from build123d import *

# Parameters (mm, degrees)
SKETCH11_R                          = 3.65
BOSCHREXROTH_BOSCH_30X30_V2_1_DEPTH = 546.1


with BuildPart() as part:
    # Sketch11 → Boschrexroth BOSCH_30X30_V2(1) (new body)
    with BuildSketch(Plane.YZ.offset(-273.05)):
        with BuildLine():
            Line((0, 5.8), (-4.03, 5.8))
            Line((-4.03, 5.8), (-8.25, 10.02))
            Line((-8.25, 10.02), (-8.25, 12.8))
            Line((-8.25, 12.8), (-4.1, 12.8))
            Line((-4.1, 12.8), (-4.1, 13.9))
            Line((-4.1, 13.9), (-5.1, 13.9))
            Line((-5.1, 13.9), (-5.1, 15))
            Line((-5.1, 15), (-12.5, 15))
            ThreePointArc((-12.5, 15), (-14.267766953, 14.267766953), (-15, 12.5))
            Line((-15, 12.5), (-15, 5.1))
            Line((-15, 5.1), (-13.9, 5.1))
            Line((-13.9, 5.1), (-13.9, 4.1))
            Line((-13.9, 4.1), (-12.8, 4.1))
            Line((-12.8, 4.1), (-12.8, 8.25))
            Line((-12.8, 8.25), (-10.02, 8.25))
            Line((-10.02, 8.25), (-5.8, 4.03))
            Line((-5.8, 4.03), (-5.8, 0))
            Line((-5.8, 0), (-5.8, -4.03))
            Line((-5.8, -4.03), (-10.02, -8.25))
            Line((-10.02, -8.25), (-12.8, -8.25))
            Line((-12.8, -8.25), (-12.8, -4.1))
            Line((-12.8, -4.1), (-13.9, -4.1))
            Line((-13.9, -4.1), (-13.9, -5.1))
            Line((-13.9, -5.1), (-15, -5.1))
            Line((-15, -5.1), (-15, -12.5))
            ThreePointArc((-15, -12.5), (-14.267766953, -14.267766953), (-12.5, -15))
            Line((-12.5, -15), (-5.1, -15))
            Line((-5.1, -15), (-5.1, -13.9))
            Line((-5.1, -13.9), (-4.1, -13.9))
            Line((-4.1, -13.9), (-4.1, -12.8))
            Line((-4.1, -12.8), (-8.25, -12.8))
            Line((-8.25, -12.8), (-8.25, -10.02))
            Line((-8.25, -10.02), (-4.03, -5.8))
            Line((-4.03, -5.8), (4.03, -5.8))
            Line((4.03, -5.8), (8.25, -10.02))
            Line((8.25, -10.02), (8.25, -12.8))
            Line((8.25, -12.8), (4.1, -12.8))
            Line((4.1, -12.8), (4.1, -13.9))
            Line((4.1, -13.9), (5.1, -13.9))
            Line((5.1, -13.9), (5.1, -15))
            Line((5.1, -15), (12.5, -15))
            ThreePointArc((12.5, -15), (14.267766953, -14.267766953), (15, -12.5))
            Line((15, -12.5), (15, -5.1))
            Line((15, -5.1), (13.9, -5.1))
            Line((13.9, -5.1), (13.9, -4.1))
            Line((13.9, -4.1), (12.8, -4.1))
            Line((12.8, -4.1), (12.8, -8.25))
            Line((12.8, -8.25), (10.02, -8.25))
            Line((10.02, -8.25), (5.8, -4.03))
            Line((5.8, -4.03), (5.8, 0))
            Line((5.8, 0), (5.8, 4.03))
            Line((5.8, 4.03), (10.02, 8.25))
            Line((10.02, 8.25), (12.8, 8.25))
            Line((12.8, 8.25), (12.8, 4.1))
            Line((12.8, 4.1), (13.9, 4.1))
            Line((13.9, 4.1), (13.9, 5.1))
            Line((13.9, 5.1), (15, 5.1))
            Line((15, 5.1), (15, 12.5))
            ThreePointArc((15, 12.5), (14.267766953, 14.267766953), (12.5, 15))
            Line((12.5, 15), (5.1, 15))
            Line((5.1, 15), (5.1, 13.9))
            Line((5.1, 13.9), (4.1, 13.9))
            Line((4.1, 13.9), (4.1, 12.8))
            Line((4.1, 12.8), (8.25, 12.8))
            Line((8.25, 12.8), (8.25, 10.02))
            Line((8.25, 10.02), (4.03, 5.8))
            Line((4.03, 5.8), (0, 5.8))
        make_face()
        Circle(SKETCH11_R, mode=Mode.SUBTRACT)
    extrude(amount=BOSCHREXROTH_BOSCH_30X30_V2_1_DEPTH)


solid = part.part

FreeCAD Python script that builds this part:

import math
import FreeCAD as App
import Part
import Sketcher
from FreeCAD import Vector

doc = App.newDocument("Part")
body = doc.addObject("PartDesign::Body", "Body")

# Sketch on YZ plane
sketch1 = body.newObject("Sketcher::SketchObject", "Sketch")
sketch1.AttachmentSupport = (doc.getObject("YZ_Plane"), [""])
sketch1.MapMode = "FlatFace"
sketch1.AttachmentOffset = App.Placement(Vector(0, 0, -273.05), App.Rotation())
sketch1.addGeometry([
    Part.LineSegment(Vector(-4, 5.8, 0), Vector(-8.2, 10, 0)),  # 0
    Part.LineSegment(Vector(-8.2, 10, 0), Vector(-8.2, 12.8, 0)),  # 1
    Part.LineSegment(Vector(-8.2, 12.8, 0), Vector(-4.1, 12.8, 0)),  # 2
    Part.LineSegment(Vector(-4.1, 12.8, 0), Vector(-4.1, 13.9, 0)),  # 3
    Part.LineSegment(Vector(-4.1, 13.9, 0), Vector(-5.1, 13.9, 0)),  # 4
    Part.LineSegment(Vector(-5.1, 13.9, 0), Vector(-5.1, 15, 0)),  # 5
    Part.LineSegment(Vector(-5.1, 15, 0), Vector(-12.5, 15, 0)),  # 6
    Part.ArcOfCircle(Part.Circle(Vector(-12.5, 12.5, 0), Vector(0, 0, 1), 2.5), math.radians(90), math.radians(180)),  # 7
    Part.LineSegment(Vector(-15, 12.5, 0), Vector(-15, 5.1, 0)),  # 8
    Part.LineSegment(Vector(-15, 5.1, 0), Vector(-13.9, 5.1, 0)),  # 9
    Part.LineSegment(Vector(-13.9, 5.1, 0), Vector(-13.9, 4.1, 0)),  # 10
    Part.LineSegment(Vector(-13.9, 4.1, 0), Vector(-12.8, 4.1, 0)),  # 11
    Part.LineSegment(Vector(-12.8, 4.1, 0), Vector(-12.8, 8.2, 0)),  # 12
    Part.LineSegment(Vector(-12.8, 8.2, 0), Vector(-10, 8.2, 0)),  # 13
    Part.LineSegment(Vector(-10, 8.2, 0), Vector(-5.8, 4, 0)),  # 14
    Part.LineSegment(Vector(-5.8, 4, 0), Vector(-5.8, -4, 0)),  # 15
    Part.LineSegment(Vector(-5.8, -4, 0), Vector(-10, -8.2, 0)),  # 16
    Part.LineSegment(Vector(-10, -8.2, 0), Vector(-12.8, -8.2, 0)),  # 17
    Part.LineSegment(Vector(-12.8, -8.2, 0), Vector(-12.8, -4.1, 0)),  # 18
    Part.LineSegment(Vector(-12.8, -4.1, 0), Vector(-13.9, -4.1, 0)),  # 19
    Part.LineSegment(Vector(-13.9, -4.1, 0), Vector(-13.9, -5.1, 0)),  # 20
    Part.LineSegment(Vector(-13.9, -5.1, 0), Vector(-15, -5.1, 0)),  # 21
    Part.LineSegment(Vector(-15, -5.1, 0), Vector(-15, -12.5, 0)),  # 22
    Part.ArcOfCircle(Part.Circle(Vector(-12.5, -12.5, 0), Vector(0, 0, 1), 2.5), math.radians(180), math.radians(270)),  # 23
    Part.LineSegment(Vector(-12.5, -15, 0), Vector(-5.1, -15, 0)),  # 24
    Part.LineSegment(Vector(-5.1, -15, 0), Vector(-5.1, -13.9, 0)),  # 25
    Part.LineSegment(Vector(-5.1, -13.9, 0), Vector(-4.1, -13.9, 0)),  # 26
    Part.LineSegment(Vector(-4.1, -13.9, 0), Vector(-4.1, -12.8, 0)),  # 27
    Part.LineSegment(Vector(-4.1, -12.8, 0), Vector(-8.2, -12.8, 0)),  # 28
    Part.LineSegment(Vector(-8.2, -12.8, 0), Vector(-8.2, -10, 0)),  # 29
    Part.LineSegment(Vector(-8.2, -10, 0), Vector(-4, -5.8, 0)),  # 30
    Part.LineSegment(Vector(-4, -5.8, 0), Vector(4, -5.8, 0)),  # 31
    Part.LineSegment(Vector(4, -5.8, 0), Vector(8.2, -10, 0)),  # 32
    Part.LineSegment(Vector(8.2, -10, 0), Vector(8.2, -12.8, 0)),  # 33
    Part.LineSegment(Vector(8.2, -12.8, 0), Vector(4.1, -12.8, 0)),  # 34
    Part.LineSegment(Vector(4.1, -12.8, 0), Vector(4.1, -13.9, 0)),  # 35
    Part.LineSegment(Vector(4.1, -13.9, 0), Vector(5.1, -13.9, 0)),  # 36
    Part.LineSegment(Vector(5.1, -13.9, 0), Vector(5.1, -15, 0)),  # 37
    Part.LineSegment(Vector(5.1, -15, 0), Vector(12.5, -15, 0)),  # 38
    Part.ArcOfCircle(Part.Circle(Vector(12.5, -12.5, 0), Vector(0, 0, 1), 2.5), math.radians(-90), math.radians(0)),  # 39
    Part.LineSegment(Vector(15, -12.5, 0), Vector(15, -5.1, 0)),  # 40
    Part.LineSegment(Vector(15, -5.1, 0), Vector(13.9, -5.1, 0)),  # 41
    Part.LineSegment(Vector(13.9, -5.1, 0), Vector(13.9, -4.1, 0)),  # 42
    Part.LineSegment(Vector(13.9, -4.1, 0), Vector(12.8, -4.1, 0)),  # 43
    Part.LineSegment(Vector(12.8, -4.1, 0), Vector(12.8, -8.2, 0)),  # 44
    Part.LineSegment(Vector(12.8, -8.2, 0), Vector(10, -8.2, 0)),  # 45
    Part.LineSegment(Vector(10, -8.2, 0), Vector(5.8, -4, 0)),  # 46
    Part.LineSegment(Vector(5.8, -4, 0), Vector(5.8, 4, 0)),  # 47
    Part.LineSegment(Vector(5.8, 4, 0), Vector(10, 8.2, 0)),  # 48
    Part.LineSegment(Vector(10, 8.2, 0), Vector(12.8, 8.2, 0)),  # 49
    Part.LineSegment(Vector(12.8, 8.2, 0), Vector(12.8, 4.1, 0)),  # 50
    Part.LineSegment(Vector(12.8, 4.1, 0), Vector(13.9, 4.1, 0)),  # 51
    Part.LineSegment(Vector(13.9, 4.1, 0), Vector(13.9, 5.1, 0)),  # 52
    Part.LineSegment(Vector(13.9, 5.1, 0), Vector(15, 5.1, 0)),  # 53
    Part.LineSegment(Vector(15, 5.1, 0), Vector(15, 12.5, 0)),  # 54
    Part.ArcOfCircle(Part.Circle(Vector(12.5, 12.5, 0), Vector(0, 0, 1), 2.5), math.radians(0), math.radians(90)),  # 55
    Part.LineSegment(Vector(12.5, 15, 0), Vector(5.1, 15, 0)),  # 56
    Part.LineSegment(Vector(5.1, 15, 0), Vector(5.1, 13.9, 0)),  # 57
    Part.LineSegment(Vector(5.1, 13.9, 0), Vector(4.1, 13.9, 0)),  # 58
    Part.LineSegment(Vector(4.1, 13.9, 0), Vector(4.1, 12.8, 0)),  # 59
    Part.LineSegment(Vector(4.1, 12.8, 0), Vector(8.2, 12.8, 0)),  # 60
    Part.LineSegment(Vector(8.2, 12.8, 0), Vector(8.2, 10, 0)),  # 61
    Part.LineSegment(Vector(8.2, 10, 0), Vector(4, 5.8, 0)),  # 62
    Part.LineSegment(Vector(4, 5.8, 0), Vector(-4, 5.8, 0)),  # 63
    Part.Circle(Vector(0, 0, 0), Vector(0, 0, 1), 3.6),  # 64
], False)
sketch1.addConstraint([
    Sketcher.Constraint("Coincident", 0, 2, 1, 1),
    Sketcher.Constraint("Coincident", 1, 2, 2, 1),
    Sketcher.Constraint("Coincident", 2, 2, 3, 1),
    Sketcher.Constraint("Coincident", 3, 2, 4, 1),
    Sketcher.Constraint("Coincident", 4, 2, 5, 1),
    Sketcher.Constraint("Coincident", 5, 2, 6, 1),
    Sketcher.Constraint("Tangent", 6, 2, 7, 1),
    Sketcher.Constraint("Tangent", 7, 2, 8, 1),
    Sketcher.Constraint("Coincident", 8, 2, 9, 1),
    Sketcher.Constraint("Coincident", 9, 2, 10, 1),
    Sketcher.Constraint("Coincident", 10, 2, 11, 1),
    Sketcher.Constraint("Coincident", 11, 2, 12, 1),
    Sketcher.Constraint("Coincident", 12, 2, 13, 1),
    Sketcher.Constraint("Coincident", 13, 2, 14, 1),
    Sketcher.Constraint("Coincident", 14, 2, 15, 1),
    Sketcher.Constraint("Coincident", 15, 2, 16, 1),
    Sketcher.Constraint("Coincident", 16, 2, 17, 1),
    Sketcher.Constraint("Coincident", 17, 2, 18, 1),
    Sketcher.Constraint("Coincident", 18, 2, 19, 1),
    Sketcher.Constraint("Coincident", 19, 2, 20, 1),
    Sketcher.Constraint("Coincident", 20, 2, 21, 1),
    Sketcher.Constraint("Coincident", 21, 2, 22, 1),
    Sketcher.Constraint("Tangent", 22, 2, 23, 1),
    Sketcher.Constraint("Tangent", 23, 2, 24, 1),
    Sketcher.Constraint("Coincident", 24, 2, 25, 1),
    Sketcher.Constraint("Coincident", 25, 2, 26, 1),
    Sketcher.Constraint("Coincident", 26, 2, 27, 1),
    Sketcher.Constraint("Coincident", 27, 2, 28, 1),
    Sketcher.Constraint("Coincident", 28, 2, 29, 1),
    Sketcher.Constraint("Coincident", 29, 2, 30, 1),
    Sketcher.Constraint("Coincident", 30, 2, 31, 1),
    Sketcher.Constraint("Coincident", 31, 2, 32, 1),
    Sketcher.Constraint("Coincident", 32, 2, 33, 1),
    Sketcher.Constraint("Coincident", 33, 2, 34, 1),
    Sketcher.Constraint("Coincident", 34, 2, 35, 1),
    Sketcher.Constraint("Coincident", 35, 2, 36, 1),
    Sketcher.Constraint("Coincident", 36, 2, 37, 1),
    Sketcher.Constraint("Coincident", 37, 2, 38, 1),
    Sketcher.Constraint("Tangent", 38, 2, 39, 1),
    Sketcher.Constraint("Tangent", 39, 2, 40, 1),
    Sketcher.Constraint("Coincident", 40, 2, 41, 1),
    Sketcher.Constraint("Coincident", 41, 2, 42, 1),
    Sketcher.Constraint("Coincident", 42, 2, 43, 1),
    Sketcher.Constraint("Coincident", 43, 2, 44, 1),
    Sketcher.Constraint("Coincident", 44, 2, 45, 1),
    Sketcher.Constraint("Coincident", 45, 2, 46, 1),
    Sketcher.Constraint("Coincident", 46, 2, 47, 1),
    Sketcher.Constraint("Coincident", 47, 2, 48, 1),
    Sketcher.Constraint("Coincident", 48, 2, 49, 1),
    Sketcher.Constraint("Coincident", 49, 2, 50, 1),
    Sketcher.Constraint("Coincident", 50, 2, 51, 1),
    Sketcher.Constraint("Coincident", 51, 2, 52, 1),
    Sketcher.Constraint("Coincident", 52, 2, 53, 1),
    Sketcher.Constraint("Coincident", 53, 2, 54, 1),
    Sketcher.Constraint("Tangent", 54, 2, 55, 1),
    Sketcher.Constraint("Tangent", 55, 2, 56, 1),
    Sketcher.Constraint("Coincident", 56, 2, 57, 1),
    Sketcher.Constraint("Coincident", 57, 2, 58, 1),
    Sketcher.Constraint("Coincident", 58, 2, 59, 1),
    Sketcher.Constraint("Coincident", 59, 2, 60, 1),
    Sketcher.Constraint("Coincident", 60, 2, 61, 1),
    Sketcher.Constraint("Coincident", 61, 2, 62, 1),
    Sketcher.Constraint("Coincident", 62, 2, 63, 1),
    Sketcher.Constraint("Coincident", 63, 2, 0, 1),
    Sketcher.Constraint("Vertical", 1),
    Sketcher.Constraint("Horizontal", 2),
    Sketcher.Constraint("Vertical", 3),
    Sketcher.Constraint("Horizontal", 4),
    Sketcher.Constraint("Vertical", 5),
    Sketcher.Constraint("Horizontal", 6),
    Sketcher.Constraint("Vertical", 8),
    Sketcher.Constraint("Horizontal", 9),
    Sketcher.Constraint("Vertical", 10),
    Sketcher.Constraint("Horizontal", 11),
    Sketcher.Constraint("Vertical", 12),
    Sketcher.Constraint("Horizontal", 13),
    Sketcher.Constraint("Vertical", 15),
    Sketcher.Constraint("Horizontal", 17),
    Sketcher.Constraint("Vertical", 18),
    Sketcher.Constraint("Horizontal", 19),
    Sketcher.Constraint("Vertical", 20),
    Sketcher.Constraint("Horizontal", 21),
    Sketcher.Constraint("Vertical", 22),
    Sketcher.Constraint("Horizontal", 24),
    Sketcher.Constraint("Vertical", 25),
    Sketcher.Constraint("Horizontal", 26),
    Sketcher.Constraint("Vertical", 27),
    Sketcher.Constraint("Horizontal", 28),
    Sketcher.Constraint("Vertical", 29),
    Sketcher.Constraint("Horizontal", 31),
    Sketcher.Constraint("Vertical", 33),
    Sketcher.Constraint("Horizontal", 34),
    Sketcher.Constraint("Vertical", 35),
    Sketcher.Constraint("Horizontal", 36),
    Sketcher.Constraint("Vertical", 37),
    Sketcher.Constraint("Horizontal", 38),
    Sketcher.Constraint("Vertical", 40),
    Sketcher.Constraint("Horizontal", 41),
    Sketcher.Constraint("Vertical", 42),
    Sketcher.Constraint("Horizontal", 43),
    Sketcher.Constraint("Vertical", 44),
    Sketcher.Constraint("Horizontal", 45),
    Sketcher.Constraint("Vertical", 47),
    Sketcher.Constraint("Horizontal", 49),
    Sketcher.Constraint("Vertical", 50),
    Sketcher.Constraint("Horizontal", 51),
    Sketcher.Constraint("Vertical", 52),
    Sketcher.Constraint("Horizontal", 53),
    Sketcher.Constraint("Vertical", 54),
    Sketcher.Constraint("Horizontal", 56),
    Sketcher.Constraint("Vertical", 57),
    Sketcher.Constraint("Horizontal", 58),
    Sketcher.Constraint("Vertical", 59),
    Sketcher.Constraint("Horizontal", 60),
    Sketcher.Constraint("Vertical", 61),
    Sketcher.Constraint("Horizontal", 63),
    Sketcher.Constraint("Coincident", 64, 3, -1, 1),
    Sketcher.Constraint("Equal", 7, 23),
    Sketcher.Constraint("Equal", 23, 39),
    Sketcher.Constraint("Equal", 39, 55),
    Sketcher.Constraint("Symmetric", 7, 3, 39, 3, -1, 1),
    Sketcher.Constraint("Symmetric", 23, 3, 55, 3, -1, 1),
    Sketcher.Constraint("Symmetric", 0, 2, 32, 2, -1, 1),
    Sketcher.Constraint("Symmetric", 2, 2, 34, 2, -1, 1),
    Sketcher.Constraint("Symmetric", 4, 2, 36, 2, -1, 1),
    Sketcher.Constraint("Symmetric", 9, 2, 41, 2, -1, 1),
    Sketcher.Constraint("Symmetric", 11, 2, 43, 2, -1, 1),
    Sketcher.Constraint("Symmetric", 13, 2, 45, 2, -1, 1),
    Sketcher.Constraint("Symmetric", 14, 2, 46, 2, -1, 1),
    Sketcher.Constraint("Symmetric", 16, 2, 48, 2, -1, 1),
    Sketcher.Constraint("Symmetric", 18, 2, 50, 2, -1, 1),
    Sketcher.Constraint("Symmetric", 20, 2, 52, 2, -1, 1),
    Sketcher.Constraint("Symmetric", 25, 2, 57, 2, -1, 1),
    Sketcher.Constraint("Symmetric", 27, 2, 59, 2, -1, 1),
    Sketcher.Constraint("Symmetric", 29, 2, 61, 2, -1, 1),
    Sketcher.Constraint("Symmetric", 30, 2, 62, 2, -1, 1),
    Sketcher.Constraint("Symmetric", 23, 3, 39, 3, -2),
    Sketcher.Constraint("Symmetric", 29, 2, 32, 2, -2),
    Sketcher.Constraint("Symmetric", 27, 2, 34, 2, -2),
    Sketcher.Constraint("Symmetric", 25, 2, 36, 2, -2),
    Sketcher.Constraint("Symmetric", 20, 2, 41, 2, -2),
    Sketcher.Constraint("Symmetric", 18, 2, 43, 2, -2),
    Sketcher.Constraint("Symmetric", 16, 2, 45, 2, -2),
    Sketcher.Constraint("Parallel", 0, 14),
    Sketcher.Constraint("Perpendicular", 14, 16),
    Sketcher.Constraint("Parallel", 16, 30),
    Sketcher.Constraint("Perpendicular", 30, 32),
    Sketcher.Constraint("Perpendicular", 46, 48),
    Sketcher.Constraint("Horizontal", 15, 2, 46, 2),
    Sketcher.Constraint("Equal", 9, 11),
    Sketcher.Constraint("Equal", 49, 1),
    Sketcher.Constraint("Equal", 53, 3),
    Sketcher.Constraint("Equal", 3, 5),
    Sketcher.Constraint("Equal", 56, 8),
    Sketcher.Constraint("Equal", 58, 10),
    Sketcher.Constraint("Equal", 60, 12),
    Sketcher.Constraint("Equal", 63, 15),
    Sketcher.Constraint("Equal", 0, 14),
    Sketcher.Constraint("Diameter", 64, 7.3),
    Sketcher.Constraint("Radius", 7, 2.5),
    Sketcher.Constraint("DistanceX", 4, 2, 4, 1, 1.0),
    Sketcher.Constraint("DistanceX", 6, 2, 6, 1, 7.4),
    Sketcher.Constraint("DistanceX", 9, 1, 9, 2, 1.1),
    Sketcher.Constraint("DistanceY", -1, 1, 5, 2, 15.0),
    Sketcher.Constraint("DistanceX", 2, 1, 2, 2, 4.15),
    Sketcher.Constraint("DistanceX", 13, 1, 13, 2, 2.78),
    Sketcher.Constraint("DistanceX", 31, 1, 31, 2, 8.06),
])
pad1 = body.newObject("PartDesign::Pad", "Pad")
pad1.Profile = sketch1
pad1.Length = 546.1

doc.recompute()
